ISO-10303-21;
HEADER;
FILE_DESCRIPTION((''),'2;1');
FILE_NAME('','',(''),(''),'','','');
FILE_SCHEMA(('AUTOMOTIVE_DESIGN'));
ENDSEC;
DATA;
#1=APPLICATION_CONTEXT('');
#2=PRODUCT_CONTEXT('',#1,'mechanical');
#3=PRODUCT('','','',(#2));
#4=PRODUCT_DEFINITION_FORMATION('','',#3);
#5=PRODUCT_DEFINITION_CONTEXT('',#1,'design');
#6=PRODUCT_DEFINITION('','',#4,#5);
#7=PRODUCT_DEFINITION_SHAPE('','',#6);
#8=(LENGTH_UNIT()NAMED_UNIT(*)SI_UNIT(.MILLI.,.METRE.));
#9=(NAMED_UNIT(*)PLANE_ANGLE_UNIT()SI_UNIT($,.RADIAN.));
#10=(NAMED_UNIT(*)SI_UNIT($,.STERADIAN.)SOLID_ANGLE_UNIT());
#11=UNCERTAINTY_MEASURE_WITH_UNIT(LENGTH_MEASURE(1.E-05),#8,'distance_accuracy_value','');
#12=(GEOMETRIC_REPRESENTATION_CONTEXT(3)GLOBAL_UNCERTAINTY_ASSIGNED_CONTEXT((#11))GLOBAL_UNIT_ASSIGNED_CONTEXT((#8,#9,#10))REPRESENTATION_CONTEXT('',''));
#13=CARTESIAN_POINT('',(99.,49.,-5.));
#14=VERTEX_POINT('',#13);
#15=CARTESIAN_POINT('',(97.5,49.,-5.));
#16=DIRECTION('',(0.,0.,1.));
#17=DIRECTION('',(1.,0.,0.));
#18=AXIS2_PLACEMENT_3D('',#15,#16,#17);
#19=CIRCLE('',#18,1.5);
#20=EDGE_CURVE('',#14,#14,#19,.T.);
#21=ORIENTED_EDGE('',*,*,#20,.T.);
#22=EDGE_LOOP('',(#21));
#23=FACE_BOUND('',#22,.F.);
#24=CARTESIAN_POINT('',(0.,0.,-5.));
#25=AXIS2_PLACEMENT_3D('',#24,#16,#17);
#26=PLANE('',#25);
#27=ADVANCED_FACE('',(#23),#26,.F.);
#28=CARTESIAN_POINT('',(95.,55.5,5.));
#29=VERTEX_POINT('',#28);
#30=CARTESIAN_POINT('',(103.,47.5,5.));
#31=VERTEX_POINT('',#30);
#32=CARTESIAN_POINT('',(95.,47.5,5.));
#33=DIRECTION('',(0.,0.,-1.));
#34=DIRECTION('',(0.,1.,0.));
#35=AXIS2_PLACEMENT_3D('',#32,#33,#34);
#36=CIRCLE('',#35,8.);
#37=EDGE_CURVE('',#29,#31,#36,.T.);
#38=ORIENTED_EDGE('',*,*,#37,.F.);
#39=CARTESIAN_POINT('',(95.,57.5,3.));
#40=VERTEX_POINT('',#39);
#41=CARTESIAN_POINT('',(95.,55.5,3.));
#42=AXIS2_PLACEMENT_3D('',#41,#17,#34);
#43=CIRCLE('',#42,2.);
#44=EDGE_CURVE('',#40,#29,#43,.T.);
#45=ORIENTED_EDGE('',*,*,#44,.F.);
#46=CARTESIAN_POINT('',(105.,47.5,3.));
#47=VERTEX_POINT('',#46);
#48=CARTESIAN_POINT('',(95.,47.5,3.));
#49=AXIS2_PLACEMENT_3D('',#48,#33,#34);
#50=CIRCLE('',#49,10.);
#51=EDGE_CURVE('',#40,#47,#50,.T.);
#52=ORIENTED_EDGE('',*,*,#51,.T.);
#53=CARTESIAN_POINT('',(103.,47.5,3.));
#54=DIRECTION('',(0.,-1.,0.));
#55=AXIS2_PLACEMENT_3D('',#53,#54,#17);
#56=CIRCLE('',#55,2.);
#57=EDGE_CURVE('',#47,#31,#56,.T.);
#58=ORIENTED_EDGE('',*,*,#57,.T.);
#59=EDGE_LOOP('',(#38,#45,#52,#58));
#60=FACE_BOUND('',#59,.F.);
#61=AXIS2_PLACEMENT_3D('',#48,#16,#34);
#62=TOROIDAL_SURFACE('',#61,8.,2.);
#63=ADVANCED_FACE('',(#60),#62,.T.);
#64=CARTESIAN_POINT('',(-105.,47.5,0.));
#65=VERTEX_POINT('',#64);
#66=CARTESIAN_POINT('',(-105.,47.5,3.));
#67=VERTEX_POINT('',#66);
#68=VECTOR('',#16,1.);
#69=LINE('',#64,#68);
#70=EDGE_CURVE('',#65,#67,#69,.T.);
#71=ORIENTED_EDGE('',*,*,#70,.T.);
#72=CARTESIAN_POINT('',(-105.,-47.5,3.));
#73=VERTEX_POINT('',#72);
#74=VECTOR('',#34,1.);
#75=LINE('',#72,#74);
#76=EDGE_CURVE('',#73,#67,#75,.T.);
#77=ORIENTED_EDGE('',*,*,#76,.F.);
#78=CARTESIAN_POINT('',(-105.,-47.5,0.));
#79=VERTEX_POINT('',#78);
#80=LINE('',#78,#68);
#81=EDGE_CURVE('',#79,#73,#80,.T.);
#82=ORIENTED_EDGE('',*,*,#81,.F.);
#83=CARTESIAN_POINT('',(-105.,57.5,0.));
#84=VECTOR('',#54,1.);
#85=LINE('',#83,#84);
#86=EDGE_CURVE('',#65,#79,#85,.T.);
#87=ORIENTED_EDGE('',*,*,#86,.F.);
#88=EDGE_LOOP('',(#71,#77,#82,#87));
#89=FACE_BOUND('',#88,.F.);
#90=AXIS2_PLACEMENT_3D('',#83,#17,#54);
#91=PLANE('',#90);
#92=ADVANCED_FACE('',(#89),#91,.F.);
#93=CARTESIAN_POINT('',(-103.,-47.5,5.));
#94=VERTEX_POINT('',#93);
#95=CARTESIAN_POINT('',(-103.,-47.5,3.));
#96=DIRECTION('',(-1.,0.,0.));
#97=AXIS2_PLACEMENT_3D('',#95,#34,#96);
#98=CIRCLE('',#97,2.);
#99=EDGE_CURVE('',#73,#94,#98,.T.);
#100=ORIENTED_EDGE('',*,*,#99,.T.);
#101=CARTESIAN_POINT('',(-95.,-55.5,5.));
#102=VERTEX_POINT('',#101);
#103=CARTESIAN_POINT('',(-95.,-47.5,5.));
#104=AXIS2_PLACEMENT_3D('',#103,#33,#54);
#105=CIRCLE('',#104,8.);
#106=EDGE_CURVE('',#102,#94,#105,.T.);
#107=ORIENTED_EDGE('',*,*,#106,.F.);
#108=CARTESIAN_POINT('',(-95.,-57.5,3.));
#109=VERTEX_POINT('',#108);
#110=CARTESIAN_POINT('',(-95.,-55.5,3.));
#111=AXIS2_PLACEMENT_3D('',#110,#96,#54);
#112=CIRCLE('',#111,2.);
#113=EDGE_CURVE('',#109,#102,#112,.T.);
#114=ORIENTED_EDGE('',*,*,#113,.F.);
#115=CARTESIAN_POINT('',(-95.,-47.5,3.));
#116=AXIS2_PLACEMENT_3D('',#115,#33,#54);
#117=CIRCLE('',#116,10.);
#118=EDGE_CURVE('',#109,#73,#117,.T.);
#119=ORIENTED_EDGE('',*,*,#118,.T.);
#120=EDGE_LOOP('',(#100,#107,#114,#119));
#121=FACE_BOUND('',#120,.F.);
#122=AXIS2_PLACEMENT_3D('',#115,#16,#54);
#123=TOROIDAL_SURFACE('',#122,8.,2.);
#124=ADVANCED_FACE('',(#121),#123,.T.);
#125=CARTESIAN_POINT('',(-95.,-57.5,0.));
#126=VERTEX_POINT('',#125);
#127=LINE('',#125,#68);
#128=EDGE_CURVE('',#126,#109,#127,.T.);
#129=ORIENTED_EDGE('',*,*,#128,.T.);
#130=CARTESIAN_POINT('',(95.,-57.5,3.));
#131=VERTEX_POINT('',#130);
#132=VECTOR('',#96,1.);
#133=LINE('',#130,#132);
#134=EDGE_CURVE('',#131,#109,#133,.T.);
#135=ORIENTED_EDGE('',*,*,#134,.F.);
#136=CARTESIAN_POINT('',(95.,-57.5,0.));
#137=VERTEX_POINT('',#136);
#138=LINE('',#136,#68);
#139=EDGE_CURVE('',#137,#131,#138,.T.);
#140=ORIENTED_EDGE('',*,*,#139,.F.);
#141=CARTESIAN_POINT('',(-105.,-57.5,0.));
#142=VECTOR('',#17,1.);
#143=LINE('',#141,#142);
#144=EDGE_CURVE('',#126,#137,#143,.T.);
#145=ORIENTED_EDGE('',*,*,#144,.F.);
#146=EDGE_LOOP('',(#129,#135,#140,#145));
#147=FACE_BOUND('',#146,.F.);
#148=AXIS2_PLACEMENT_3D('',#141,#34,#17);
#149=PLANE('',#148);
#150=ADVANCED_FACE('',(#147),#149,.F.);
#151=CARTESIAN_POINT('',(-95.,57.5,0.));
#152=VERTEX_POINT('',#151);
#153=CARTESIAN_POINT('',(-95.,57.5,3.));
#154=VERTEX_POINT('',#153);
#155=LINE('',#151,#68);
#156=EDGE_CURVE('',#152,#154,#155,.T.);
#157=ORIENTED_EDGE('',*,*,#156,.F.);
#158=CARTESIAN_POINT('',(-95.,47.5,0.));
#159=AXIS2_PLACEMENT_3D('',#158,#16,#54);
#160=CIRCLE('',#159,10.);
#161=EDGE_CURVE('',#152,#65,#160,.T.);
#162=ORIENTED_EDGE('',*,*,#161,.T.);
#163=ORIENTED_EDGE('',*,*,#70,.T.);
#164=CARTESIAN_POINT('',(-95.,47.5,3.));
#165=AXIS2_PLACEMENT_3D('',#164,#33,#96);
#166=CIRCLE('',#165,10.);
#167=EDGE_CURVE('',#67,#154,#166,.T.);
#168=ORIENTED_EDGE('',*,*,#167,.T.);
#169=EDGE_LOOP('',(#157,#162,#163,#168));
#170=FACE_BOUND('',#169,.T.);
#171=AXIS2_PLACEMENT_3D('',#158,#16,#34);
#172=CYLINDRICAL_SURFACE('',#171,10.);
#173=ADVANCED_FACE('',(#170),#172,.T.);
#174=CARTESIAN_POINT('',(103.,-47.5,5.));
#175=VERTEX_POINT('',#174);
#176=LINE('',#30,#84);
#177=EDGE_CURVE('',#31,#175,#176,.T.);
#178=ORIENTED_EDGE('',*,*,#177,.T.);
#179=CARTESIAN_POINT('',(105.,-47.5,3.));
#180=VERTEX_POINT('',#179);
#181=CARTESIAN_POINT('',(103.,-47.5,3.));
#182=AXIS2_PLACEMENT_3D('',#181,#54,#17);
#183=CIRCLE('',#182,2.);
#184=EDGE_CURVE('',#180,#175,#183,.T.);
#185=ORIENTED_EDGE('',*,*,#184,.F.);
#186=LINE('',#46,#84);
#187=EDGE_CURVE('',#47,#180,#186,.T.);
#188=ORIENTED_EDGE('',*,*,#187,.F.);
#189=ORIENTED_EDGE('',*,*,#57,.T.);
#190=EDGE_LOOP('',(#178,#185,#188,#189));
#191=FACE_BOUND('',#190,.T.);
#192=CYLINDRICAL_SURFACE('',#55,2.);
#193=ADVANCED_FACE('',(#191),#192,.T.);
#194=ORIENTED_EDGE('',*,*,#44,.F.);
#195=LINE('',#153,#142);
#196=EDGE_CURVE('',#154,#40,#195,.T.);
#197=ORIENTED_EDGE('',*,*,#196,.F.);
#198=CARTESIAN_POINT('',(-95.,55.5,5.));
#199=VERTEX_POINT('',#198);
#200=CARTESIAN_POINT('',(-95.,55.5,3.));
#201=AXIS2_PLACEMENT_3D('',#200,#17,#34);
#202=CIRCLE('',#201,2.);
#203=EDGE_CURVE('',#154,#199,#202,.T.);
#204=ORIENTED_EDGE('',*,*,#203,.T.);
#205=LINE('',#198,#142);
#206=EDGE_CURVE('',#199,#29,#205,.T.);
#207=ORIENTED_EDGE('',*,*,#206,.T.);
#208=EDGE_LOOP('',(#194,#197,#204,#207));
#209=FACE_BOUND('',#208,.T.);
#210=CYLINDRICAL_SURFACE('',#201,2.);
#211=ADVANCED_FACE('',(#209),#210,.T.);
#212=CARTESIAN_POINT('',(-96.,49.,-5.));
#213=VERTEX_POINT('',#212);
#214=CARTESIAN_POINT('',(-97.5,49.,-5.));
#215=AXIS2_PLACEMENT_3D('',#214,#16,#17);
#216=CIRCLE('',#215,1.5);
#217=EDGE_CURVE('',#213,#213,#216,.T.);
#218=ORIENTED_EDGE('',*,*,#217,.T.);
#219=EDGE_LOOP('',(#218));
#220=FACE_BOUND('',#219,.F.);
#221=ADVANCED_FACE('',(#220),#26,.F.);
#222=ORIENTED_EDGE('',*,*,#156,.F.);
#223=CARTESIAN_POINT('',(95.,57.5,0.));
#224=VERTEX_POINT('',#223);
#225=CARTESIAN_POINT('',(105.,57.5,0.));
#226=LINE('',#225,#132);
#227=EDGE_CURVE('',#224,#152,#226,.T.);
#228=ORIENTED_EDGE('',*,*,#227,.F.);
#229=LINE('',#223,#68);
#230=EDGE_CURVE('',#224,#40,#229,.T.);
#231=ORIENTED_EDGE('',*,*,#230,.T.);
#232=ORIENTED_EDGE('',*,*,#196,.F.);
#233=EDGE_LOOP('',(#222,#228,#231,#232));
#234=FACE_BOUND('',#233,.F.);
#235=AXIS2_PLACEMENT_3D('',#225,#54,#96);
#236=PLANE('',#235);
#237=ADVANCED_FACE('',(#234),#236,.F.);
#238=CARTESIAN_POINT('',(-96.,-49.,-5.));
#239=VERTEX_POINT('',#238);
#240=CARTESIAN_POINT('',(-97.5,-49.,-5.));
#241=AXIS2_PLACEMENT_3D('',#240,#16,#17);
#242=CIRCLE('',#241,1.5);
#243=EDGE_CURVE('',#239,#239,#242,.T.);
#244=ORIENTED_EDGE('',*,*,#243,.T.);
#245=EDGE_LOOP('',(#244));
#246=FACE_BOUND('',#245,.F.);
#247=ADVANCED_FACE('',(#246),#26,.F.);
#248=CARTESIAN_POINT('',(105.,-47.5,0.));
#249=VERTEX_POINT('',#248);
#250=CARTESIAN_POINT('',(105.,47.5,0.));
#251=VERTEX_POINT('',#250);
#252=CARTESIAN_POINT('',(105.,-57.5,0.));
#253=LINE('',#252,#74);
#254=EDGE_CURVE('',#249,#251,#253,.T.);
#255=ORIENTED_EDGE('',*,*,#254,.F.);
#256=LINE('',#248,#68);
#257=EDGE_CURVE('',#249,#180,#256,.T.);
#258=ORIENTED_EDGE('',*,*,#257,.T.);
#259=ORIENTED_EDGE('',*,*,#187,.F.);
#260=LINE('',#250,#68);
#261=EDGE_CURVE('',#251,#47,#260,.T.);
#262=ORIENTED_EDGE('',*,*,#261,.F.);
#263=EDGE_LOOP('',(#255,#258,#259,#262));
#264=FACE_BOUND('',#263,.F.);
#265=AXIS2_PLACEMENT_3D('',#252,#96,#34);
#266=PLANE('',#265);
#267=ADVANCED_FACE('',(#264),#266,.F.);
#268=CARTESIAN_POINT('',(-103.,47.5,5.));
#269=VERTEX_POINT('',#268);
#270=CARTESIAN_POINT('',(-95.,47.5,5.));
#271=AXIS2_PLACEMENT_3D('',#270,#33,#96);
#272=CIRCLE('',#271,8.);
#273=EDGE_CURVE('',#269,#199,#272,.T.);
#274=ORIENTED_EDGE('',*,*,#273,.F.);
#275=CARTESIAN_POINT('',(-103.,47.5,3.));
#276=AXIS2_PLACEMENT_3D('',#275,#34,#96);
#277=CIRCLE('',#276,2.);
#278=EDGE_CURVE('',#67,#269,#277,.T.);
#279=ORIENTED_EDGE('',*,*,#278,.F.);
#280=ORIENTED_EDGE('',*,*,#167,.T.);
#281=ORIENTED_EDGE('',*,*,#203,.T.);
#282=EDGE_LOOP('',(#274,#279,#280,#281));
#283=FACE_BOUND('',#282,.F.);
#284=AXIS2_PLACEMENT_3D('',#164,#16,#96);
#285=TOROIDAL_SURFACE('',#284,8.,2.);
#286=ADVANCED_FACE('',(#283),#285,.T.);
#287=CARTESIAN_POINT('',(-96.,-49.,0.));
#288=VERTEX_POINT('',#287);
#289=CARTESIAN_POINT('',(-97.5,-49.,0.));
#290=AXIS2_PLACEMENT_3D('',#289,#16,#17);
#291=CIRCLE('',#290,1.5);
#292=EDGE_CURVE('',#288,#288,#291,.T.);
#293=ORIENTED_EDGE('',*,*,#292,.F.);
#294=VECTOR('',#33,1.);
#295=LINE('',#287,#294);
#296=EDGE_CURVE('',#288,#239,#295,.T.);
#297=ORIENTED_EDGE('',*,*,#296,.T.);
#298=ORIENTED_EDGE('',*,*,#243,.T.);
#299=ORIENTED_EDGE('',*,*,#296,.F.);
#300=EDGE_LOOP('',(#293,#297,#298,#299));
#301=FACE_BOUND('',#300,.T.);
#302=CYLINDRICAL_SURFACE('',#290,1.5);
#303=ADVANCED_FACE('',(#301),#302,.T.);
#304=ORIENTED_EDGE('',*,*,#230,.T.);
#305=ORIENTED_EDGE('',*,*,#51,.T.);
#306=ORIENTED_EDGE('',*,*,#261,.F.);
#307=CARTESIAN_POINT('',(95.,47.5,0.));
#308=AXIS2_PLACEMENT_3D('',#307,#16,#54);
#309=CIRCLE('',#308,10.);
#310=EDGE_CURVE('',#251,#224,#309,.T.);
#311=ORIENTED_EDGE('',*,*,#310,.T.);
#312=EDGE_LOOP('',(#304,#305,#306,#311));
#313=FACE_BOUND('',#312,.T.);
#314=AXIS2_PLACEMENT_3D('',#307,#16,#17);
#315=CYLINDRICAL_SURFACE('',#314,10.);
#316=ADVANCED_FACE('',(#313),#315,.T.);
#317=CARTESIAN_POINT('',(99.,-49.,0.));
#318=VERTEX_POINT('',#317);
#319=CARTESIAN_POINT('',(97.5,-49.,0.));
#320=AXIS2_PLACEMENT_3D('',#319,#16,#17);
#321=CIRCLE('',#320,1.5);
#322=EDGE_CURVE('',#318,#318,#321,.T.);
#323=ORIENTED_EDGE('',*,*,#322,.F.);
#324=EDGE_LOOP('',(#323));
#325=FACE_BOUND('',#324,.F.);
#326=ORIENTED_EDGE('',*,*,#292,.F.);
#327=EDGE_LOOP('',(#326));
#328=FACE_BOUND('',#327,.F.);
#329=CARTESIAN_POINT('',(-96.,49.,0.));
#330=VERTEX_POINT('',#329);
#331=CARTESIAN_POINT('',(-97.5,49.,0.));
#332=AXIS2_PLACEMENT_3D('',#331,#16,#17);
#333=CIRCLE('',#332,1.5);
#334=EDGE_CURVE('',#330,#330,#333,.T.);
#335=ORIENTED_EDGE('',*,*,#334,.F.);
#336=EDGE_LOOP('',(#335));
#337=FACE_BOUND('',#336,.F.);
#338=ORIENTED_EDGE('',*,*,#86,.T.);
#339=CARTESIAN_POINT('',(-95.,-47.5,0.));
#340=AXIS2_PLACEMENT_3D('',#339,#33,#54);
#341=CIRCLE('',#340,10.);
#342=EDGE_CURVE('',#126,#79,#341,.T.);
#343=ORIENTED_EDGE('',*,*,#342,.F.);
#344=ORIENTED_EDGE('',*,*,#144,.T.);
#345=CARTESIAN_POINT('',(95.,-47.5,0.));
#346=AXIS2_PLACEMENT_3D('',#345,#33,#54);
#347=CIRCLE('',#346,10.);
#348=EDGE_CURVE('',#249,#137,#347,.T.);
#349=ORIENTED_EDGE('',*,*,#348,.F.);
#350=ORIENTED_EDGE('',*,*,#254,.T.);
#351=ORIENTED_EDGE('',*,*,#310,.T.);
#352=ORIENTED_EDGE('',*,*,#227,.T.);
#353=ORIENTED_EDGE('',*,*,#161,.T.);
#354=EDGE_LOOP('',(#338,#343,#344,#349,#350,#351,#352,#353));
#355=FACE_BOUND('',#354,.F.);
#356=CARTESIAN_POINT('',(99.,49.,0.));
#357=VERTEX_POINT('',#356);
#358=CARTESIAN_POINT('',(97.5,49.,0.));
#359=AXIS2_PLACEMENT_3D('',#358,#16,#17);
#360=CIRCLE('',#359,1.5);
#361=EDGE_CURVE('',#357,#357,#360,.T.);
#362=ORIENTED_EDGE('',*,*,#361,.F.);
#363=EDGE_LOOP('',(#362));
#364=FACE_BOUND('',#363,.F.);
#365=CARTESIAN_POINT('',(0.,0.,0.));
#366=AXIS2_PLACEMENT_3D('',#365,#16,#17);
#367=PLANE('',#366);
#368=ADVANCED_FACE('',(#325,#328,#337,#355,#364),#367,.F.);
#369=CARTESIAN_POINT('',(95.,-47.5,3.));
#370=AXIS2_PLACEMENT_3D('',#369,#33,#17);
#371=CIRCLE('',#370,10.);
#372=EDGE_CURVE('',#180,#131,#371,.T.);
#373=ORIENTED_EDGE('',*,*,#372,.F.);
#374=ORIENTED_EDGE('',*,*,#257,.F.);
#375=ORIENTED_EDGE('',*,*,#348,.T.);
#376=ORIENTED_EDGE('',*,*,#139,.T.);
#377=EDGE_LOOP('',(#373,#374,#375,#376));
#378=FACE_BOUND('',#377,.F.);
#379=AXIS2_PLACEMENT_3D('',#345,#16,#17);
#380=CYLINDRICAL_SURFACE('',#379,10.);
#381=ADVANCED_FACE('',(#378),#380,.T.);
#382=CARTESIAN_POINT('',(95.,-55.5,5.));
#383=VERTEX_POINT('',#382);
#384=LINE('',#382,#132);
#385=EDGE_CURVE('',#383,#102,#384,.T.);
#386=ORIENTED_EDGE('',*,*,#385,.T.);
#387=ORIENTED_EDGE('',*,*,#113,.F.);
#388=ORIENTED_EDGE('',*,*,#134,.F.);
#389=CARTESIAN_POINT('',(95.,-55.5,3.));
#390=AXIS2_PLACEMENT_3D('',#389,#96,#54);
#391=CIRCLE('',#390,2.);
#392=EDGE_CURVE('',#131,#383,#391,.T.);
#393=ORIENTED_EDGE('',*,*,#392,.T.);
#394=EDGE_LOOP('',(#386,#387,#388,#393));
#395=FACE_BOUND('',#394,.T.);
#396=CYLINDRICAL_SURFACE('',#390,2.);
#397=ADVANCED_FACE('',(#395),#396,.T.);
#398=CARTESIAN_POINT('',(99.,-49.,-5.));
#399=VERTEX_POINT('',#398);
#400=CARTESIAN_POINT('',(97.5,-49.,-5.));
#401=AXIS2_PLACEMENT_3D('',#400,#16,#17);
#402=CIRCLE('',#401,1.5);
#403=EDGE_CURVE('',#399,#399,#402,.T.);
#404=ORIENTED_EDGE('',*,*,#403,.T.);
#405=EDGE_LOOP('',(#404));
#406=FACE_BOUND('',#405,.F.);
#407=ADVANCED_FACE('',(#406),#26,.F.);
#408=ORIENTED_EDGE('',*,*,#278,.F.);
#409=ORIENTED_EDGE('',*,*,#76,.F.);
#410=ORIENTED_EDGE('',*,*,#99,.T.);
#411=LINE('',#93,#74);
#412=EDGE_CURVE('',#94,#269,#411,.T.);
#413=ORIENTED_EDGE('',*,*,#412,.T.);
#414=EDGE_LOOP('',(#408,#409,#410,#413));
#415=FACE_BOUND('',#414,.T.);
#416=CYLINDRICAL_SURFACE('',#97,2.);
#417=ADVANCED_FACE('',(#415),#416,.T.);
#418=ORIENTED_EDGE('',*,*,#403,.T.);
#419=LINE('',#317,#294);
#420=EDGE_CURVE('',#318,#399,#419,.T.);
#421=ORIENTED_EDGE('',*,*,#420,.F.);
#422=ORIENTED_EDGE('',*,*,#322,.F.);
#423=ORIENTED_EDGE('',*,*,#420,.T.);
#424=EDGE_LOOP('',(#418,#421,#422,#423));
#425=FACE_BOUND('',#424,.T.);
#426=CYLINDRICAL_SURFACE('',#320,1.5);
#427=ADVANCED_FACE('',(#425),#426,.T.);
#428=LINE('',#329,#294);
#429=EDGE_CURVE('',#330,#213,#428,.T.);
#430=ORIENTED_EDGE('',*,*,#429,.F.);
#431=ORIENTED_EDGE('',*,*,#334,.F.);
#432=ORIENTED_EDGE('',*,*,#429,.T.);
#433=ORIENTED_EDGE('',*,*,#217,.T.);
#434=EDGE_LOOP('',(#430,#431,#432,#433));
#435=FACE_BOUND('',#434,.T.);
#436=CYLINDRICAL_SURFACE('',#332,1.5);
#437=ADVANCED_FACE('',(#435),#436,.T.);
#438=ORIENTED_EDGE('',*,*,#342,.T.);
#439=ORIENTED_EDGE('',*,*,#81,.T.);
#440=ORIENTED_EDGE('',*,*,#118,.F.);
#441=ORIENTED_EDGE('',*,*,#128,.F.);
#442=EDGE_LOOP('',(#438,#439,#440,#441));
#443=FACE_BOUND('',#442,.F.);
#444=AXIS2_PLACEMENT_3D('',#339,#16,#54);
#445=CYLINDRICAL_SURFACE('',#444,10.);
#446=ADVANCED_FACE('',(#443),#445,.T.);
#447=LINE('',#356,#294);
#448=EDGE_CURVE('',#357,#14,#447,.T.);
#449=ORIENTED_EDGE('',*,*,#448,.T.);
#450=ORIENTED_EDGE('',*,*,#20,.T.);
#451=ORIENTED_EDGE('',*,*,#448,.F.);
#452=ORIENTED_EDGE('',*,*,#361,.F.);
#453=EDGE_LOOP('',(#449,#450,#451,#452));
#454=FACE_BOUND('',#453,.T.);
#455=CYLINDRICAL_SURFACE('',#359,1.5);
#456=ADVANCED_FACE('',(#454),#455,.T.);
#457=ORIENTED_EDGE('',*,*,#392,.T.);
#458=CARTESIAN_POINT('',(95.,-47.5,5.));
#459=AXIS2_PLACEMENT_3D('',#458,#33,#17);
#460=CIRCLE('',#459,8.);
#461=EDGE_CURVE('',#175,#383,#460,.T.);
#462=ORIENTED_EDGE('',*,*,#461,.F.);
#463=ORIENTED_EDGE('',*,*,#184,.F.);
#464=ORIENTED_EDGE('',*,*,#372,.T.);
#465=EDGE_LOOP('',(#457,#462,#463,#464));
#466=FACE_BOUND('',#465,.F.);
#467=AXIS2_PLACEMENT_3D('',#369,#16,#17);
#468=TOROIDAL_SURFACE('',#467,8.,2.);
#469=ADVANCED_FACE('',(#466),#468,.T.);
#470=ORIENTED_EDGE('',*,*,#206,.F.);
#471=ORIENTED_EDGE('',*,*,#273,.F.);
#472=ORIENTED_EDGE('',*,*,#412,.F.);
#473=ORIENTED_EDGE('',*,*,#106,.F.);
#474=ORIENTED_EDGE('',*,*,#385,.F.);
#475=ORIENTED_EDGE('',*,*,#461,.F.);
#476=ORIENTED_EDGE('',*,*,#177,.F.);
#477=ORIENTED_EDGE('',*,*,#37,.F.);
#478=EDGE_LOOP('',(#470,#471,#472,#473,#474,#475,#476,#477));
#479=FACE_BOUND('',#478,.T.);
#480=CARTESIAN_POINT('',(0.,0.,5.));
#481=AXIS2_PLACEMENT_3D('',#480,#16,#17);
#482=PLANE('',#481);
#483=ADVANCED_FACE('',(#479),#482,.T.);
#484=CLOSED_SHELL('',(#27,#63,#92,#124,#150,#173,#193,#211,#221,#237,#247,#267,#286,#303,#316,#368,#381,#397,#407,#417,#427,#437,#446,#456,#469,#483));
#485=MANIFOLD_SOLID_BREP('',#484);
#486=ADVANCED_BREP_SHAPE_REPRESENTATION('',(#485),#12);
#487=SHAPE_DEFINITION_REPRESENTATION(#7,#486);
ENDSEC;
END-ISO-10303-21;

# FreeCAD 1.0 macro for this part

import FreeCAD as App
import Part
import Sketcher

V = App.Vector
Q = App.Units.Quantity


def edges_at(feature, points):
    """Names of the edges that pass closest to the given points."""
    edges = feature.Shape.Edges
    near = lambda p: min(range(len(edges)), key=lambda i: edges[i].distToShape(Part.Vertex(*p))[0])
    return sorted({f"Edge{near(p) + 1}" for p in points})


def add_polygon(sketch, points):
    """Adds a closed chain of lines whose ends are joined by coincident constraints."""
    first, n = sketch.GeometryCount, len(points)
    for a, b in zip(points, points[1:] + points[:1]):
        sketch.addGeometry(Part.LineSegment(App.Vector(*a, 0), App.Vector(*b, 0)), False)
    for i in range(n):
        sketch.addConstraint(Sketcher.Constraint("Coincident", first + i, 2, first + (i + 1) % n, 1))

doc = App.newDocument("Part")
body = doc.addObject("PartDesign::Body", "Body")

# Sketch on XY plane
sketch1 = body.newObject("Sketcher::SketchObject", "Sketch")
sketch1.AttachmentSupport = (doc.getObject("XY_Plane"), [""])
sketch1.MapMode = "FlatFace"
add_polygon(sketch1, [(105, -57.5), (105, 57.5), (-105, 57.5), (-105, -57.5)])  # lines 0-3
sketch1.addConstraint(Sketcher.Constraint("Vertical", 0))
sketch1.addConstraint(Sketcher.Constraint("Horizontal", 1))
sketch1.addConstraint(Sketcher.Constraint("Vertical", 2))
sketch1.addConstraint(Sketcher.Constraint("Horizontal", 3))
sketch1.addConstraint(Sketcher.Constraint("Symmetric", 0, 2, 2, 2, -1, 1))
sketch1.addConstraint(Sketcher.Constraint("DistanceX", 1, 2, 1, 1, Q("210 mm")))
sketch1.addConstraint(Sketcher.Constraint("DistanceY", 0, 1, 0, 2, Q("115 mm")))
pad1 = body.newObject("PartDesign::Pad", "Pad")
pad1.Profile = sketch1
pad1.Length = 5

# Sketch on XY plane
sketch2 = body.newObject("Sketcher::SketchObject", "Sketch001")
sketch2.AttachmentSupport = (doc.getObject("XY_Plane"), [""])
sketch2.MapMode = "FlatFace"
sketch2.addGeometry(Part.Circle(V(97.5, -49, 0), V(0, 0, 1), 1.5), False)
sketch2.addGeometry(Part.Circle(V(97.5, 49, 0), V(0, 0, 1), 1.5), False)
sketch2.addGeometry(Part.Circle(V(-97.5, -49, 0), V(0, 0, 1), 1.5), False)
sketch2.addGeometry(Part.Circle(V(-97.5, 49, 0), V(0, 0, 1), 1.5), False)
sketch2.addConstraint(Sketcher.Constraint("Equal", 0, 1))
sketch2.addConstraint(Sketcher.Constraint("Equal", 1, 2))
sketch2.addConstraint(Sketcher.Constraint("Equal", 2, 3))
sketch2.addConstraint(Sketcher.Constraint("Symmetric", 1, 3, 2, 3, -1, 1))
sketch2.addConstraint(Sketcher.Constraint("Symmetric", 0, 3, 3, 3, -1, 1))
sketch2.addConstraint(Sketcher.Constraint("Symmetric", 0, 3, 2, 3, -2))
sketch2.addConstraint(Sketcher.Constraint("Diameter", 0, Q("3 mm")))
sketch2.addConstraint(Sketcher.Constraint("DistanceY", 0, 3, -1, 1, Q("49 mm")))
sketch2.addConstraint(Sketcher.Constraint("DistanceX", -1, 1, 0, 3, Q("97.5 mm")))
pad2 = body.newObject("PartDesign::Pad", "Pad001")
pad2.Profile = sketch2
pad2.Length = 5
pad2.Reversed = True
doc.recompute()

fillet = body.newObject("PartDesign::Fillet", "Fillet")
fillet.Base = (pad2, edges_at(pad2, [
    (-105, -57.5, 2.5),
    (-105, 57.5, 2.5),
    (105, -57.5, 2.5),
    (105, 57.5, 2.5),
]))
fillet.Radius = 10
doc.recompute()

fillet2 = body.newObject("PartDesign::Fillet", "Fillet001")
fillet2.Base = (fillet, edges_at(fillet, [
    (102.071, -54.571, 5),
    (105, 0, 5),
    (102.071, 54.571, 5),
    (0, 57.5, 5),
    (-102.071, 54.571, 5),
    (-105, 0, 5),
    (-102.071, -54.571, 5),
    (0, -57.5, 5),
]))
fillet2.Radius = 2

doc.recompute()
